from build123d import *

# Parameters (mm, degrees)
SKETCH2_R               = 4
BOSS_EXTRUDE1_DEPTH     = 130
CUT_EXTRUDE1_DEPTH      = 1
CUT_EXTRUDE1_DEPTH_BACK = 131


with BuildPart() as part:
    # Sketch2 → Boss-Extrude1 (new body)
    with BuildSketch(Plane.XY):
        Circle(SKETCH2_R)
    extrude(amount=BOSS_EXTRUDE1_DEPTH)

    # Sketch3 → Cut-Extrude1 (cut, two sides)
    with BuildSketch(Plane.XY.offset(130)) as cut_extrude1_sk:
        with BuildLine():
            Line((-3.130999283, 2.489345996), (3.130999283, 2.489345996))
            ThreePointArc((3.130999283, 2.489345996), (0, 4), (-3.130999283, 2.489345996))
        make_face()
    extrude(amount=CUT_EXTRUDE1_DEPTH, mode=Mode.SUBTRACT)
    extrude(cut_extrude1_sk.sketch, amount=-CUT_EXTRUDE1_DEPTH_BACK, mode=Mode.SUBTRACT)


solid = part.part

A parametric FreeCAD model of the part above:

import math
import FreeCAD as App
import Part
import Sketcher
Q = App.Units.Quantity

doc = App.newDocument("Part")
params = doc.addObject("Spreadsheet::Sheet", "Params")
for row, (alias, value) in enumerate([
    ("sketch1_diameter", "8 mm"),
    ("pad1_length", "130 mm"),
    ("sketch2_radius", "4 mm"),
], start=1):
    params.set(f"A{row}", alias)
    params.set(f"B{row}", "=" + value)
    params.setAlias(f"B{row}", alias)

body = doc.addObject("PartDesign::Body", "Body")

# Sketch on XY plane
sketch1 = doc.addObject("Sketcher::SketchObject", "Sketch")
body.addObject(sketch1)
sketch1.AttachmentSupport = (doc.XY_Plane, [""])
sketch1.MapMode = "FlatFace"
sketch1.addGeometry(Part.Circle(App.Vector(0, 0, 0), App.Vector(0, 0, 1), 4), False)
sketch1.addConstraint([
    Sketcher.Constraint("Coincident", 0, 3, -1, 1),
    Sketcher.Constraint("Diameter", 0, Q("8 mm")),
])
sketch1.setExpression("Constraints[1]", "Params.sketch1_diameter")
pad1 = doc.addObject("PartDesign::Pad", "Pad")
body.addObject(pad1)
pad1.Profile = sketch1
pad1.setExpression("Length", "Params.pad1_length")

# Sketch on XY plane
sketch2 = doc.addObject("Sketcher::SketchObject", "Sketch001")
body.addObject(sketch2)
sketch2.AttachmentSupport = (doc.XY_Plane, [""])
sketch2.MapMode = "FlatFace"
sketch2.AttachmentOffset = App.Placement(App.Vector(0, 0, 130), App.Rotation())
sketch2.addGeometry([
    Part.LineSegment(App.Vector(-3.130999, 2.489346, 0), App.Vector(3.130999, 2.489346, 0)),
    Part.ArcOfCircle(Part.Circle(App.Vector(0, 0, 0), App.Vector(0, 0, 1), 4), math.radians(38.486959), math.radians(141.513041)),
], False)
sketch2.addConstraint([
    Sketcher.Constraint("Coincident", 0, 1, 1, 2),
    Sketcher.Constraint("Coincident", 1, 1, 0, 2),
    Sketcher.Constraint("Horizontal", 0),
    Sketcher.Constraint("Coincident", 1, 3, -1, 1),
    Sketcher.Constraint("Radius", 1, Q("4 mm")),
    Sketcher.Constraint("DistanceX", 0, 1, 0, 2, Q("6.261999 mm")),
])
sketch2.setExpression("Constraints[4]", "Params.sketch2_radius")
pocket1 = doc.addObject("PartDesign::Pocket", "Pocket")
body.addObject(pocket1)
pocket1.Profile = sketch2
pocket1.Type = "ThroughAll"
pocket1.Midplane = True

doc.recompute()
